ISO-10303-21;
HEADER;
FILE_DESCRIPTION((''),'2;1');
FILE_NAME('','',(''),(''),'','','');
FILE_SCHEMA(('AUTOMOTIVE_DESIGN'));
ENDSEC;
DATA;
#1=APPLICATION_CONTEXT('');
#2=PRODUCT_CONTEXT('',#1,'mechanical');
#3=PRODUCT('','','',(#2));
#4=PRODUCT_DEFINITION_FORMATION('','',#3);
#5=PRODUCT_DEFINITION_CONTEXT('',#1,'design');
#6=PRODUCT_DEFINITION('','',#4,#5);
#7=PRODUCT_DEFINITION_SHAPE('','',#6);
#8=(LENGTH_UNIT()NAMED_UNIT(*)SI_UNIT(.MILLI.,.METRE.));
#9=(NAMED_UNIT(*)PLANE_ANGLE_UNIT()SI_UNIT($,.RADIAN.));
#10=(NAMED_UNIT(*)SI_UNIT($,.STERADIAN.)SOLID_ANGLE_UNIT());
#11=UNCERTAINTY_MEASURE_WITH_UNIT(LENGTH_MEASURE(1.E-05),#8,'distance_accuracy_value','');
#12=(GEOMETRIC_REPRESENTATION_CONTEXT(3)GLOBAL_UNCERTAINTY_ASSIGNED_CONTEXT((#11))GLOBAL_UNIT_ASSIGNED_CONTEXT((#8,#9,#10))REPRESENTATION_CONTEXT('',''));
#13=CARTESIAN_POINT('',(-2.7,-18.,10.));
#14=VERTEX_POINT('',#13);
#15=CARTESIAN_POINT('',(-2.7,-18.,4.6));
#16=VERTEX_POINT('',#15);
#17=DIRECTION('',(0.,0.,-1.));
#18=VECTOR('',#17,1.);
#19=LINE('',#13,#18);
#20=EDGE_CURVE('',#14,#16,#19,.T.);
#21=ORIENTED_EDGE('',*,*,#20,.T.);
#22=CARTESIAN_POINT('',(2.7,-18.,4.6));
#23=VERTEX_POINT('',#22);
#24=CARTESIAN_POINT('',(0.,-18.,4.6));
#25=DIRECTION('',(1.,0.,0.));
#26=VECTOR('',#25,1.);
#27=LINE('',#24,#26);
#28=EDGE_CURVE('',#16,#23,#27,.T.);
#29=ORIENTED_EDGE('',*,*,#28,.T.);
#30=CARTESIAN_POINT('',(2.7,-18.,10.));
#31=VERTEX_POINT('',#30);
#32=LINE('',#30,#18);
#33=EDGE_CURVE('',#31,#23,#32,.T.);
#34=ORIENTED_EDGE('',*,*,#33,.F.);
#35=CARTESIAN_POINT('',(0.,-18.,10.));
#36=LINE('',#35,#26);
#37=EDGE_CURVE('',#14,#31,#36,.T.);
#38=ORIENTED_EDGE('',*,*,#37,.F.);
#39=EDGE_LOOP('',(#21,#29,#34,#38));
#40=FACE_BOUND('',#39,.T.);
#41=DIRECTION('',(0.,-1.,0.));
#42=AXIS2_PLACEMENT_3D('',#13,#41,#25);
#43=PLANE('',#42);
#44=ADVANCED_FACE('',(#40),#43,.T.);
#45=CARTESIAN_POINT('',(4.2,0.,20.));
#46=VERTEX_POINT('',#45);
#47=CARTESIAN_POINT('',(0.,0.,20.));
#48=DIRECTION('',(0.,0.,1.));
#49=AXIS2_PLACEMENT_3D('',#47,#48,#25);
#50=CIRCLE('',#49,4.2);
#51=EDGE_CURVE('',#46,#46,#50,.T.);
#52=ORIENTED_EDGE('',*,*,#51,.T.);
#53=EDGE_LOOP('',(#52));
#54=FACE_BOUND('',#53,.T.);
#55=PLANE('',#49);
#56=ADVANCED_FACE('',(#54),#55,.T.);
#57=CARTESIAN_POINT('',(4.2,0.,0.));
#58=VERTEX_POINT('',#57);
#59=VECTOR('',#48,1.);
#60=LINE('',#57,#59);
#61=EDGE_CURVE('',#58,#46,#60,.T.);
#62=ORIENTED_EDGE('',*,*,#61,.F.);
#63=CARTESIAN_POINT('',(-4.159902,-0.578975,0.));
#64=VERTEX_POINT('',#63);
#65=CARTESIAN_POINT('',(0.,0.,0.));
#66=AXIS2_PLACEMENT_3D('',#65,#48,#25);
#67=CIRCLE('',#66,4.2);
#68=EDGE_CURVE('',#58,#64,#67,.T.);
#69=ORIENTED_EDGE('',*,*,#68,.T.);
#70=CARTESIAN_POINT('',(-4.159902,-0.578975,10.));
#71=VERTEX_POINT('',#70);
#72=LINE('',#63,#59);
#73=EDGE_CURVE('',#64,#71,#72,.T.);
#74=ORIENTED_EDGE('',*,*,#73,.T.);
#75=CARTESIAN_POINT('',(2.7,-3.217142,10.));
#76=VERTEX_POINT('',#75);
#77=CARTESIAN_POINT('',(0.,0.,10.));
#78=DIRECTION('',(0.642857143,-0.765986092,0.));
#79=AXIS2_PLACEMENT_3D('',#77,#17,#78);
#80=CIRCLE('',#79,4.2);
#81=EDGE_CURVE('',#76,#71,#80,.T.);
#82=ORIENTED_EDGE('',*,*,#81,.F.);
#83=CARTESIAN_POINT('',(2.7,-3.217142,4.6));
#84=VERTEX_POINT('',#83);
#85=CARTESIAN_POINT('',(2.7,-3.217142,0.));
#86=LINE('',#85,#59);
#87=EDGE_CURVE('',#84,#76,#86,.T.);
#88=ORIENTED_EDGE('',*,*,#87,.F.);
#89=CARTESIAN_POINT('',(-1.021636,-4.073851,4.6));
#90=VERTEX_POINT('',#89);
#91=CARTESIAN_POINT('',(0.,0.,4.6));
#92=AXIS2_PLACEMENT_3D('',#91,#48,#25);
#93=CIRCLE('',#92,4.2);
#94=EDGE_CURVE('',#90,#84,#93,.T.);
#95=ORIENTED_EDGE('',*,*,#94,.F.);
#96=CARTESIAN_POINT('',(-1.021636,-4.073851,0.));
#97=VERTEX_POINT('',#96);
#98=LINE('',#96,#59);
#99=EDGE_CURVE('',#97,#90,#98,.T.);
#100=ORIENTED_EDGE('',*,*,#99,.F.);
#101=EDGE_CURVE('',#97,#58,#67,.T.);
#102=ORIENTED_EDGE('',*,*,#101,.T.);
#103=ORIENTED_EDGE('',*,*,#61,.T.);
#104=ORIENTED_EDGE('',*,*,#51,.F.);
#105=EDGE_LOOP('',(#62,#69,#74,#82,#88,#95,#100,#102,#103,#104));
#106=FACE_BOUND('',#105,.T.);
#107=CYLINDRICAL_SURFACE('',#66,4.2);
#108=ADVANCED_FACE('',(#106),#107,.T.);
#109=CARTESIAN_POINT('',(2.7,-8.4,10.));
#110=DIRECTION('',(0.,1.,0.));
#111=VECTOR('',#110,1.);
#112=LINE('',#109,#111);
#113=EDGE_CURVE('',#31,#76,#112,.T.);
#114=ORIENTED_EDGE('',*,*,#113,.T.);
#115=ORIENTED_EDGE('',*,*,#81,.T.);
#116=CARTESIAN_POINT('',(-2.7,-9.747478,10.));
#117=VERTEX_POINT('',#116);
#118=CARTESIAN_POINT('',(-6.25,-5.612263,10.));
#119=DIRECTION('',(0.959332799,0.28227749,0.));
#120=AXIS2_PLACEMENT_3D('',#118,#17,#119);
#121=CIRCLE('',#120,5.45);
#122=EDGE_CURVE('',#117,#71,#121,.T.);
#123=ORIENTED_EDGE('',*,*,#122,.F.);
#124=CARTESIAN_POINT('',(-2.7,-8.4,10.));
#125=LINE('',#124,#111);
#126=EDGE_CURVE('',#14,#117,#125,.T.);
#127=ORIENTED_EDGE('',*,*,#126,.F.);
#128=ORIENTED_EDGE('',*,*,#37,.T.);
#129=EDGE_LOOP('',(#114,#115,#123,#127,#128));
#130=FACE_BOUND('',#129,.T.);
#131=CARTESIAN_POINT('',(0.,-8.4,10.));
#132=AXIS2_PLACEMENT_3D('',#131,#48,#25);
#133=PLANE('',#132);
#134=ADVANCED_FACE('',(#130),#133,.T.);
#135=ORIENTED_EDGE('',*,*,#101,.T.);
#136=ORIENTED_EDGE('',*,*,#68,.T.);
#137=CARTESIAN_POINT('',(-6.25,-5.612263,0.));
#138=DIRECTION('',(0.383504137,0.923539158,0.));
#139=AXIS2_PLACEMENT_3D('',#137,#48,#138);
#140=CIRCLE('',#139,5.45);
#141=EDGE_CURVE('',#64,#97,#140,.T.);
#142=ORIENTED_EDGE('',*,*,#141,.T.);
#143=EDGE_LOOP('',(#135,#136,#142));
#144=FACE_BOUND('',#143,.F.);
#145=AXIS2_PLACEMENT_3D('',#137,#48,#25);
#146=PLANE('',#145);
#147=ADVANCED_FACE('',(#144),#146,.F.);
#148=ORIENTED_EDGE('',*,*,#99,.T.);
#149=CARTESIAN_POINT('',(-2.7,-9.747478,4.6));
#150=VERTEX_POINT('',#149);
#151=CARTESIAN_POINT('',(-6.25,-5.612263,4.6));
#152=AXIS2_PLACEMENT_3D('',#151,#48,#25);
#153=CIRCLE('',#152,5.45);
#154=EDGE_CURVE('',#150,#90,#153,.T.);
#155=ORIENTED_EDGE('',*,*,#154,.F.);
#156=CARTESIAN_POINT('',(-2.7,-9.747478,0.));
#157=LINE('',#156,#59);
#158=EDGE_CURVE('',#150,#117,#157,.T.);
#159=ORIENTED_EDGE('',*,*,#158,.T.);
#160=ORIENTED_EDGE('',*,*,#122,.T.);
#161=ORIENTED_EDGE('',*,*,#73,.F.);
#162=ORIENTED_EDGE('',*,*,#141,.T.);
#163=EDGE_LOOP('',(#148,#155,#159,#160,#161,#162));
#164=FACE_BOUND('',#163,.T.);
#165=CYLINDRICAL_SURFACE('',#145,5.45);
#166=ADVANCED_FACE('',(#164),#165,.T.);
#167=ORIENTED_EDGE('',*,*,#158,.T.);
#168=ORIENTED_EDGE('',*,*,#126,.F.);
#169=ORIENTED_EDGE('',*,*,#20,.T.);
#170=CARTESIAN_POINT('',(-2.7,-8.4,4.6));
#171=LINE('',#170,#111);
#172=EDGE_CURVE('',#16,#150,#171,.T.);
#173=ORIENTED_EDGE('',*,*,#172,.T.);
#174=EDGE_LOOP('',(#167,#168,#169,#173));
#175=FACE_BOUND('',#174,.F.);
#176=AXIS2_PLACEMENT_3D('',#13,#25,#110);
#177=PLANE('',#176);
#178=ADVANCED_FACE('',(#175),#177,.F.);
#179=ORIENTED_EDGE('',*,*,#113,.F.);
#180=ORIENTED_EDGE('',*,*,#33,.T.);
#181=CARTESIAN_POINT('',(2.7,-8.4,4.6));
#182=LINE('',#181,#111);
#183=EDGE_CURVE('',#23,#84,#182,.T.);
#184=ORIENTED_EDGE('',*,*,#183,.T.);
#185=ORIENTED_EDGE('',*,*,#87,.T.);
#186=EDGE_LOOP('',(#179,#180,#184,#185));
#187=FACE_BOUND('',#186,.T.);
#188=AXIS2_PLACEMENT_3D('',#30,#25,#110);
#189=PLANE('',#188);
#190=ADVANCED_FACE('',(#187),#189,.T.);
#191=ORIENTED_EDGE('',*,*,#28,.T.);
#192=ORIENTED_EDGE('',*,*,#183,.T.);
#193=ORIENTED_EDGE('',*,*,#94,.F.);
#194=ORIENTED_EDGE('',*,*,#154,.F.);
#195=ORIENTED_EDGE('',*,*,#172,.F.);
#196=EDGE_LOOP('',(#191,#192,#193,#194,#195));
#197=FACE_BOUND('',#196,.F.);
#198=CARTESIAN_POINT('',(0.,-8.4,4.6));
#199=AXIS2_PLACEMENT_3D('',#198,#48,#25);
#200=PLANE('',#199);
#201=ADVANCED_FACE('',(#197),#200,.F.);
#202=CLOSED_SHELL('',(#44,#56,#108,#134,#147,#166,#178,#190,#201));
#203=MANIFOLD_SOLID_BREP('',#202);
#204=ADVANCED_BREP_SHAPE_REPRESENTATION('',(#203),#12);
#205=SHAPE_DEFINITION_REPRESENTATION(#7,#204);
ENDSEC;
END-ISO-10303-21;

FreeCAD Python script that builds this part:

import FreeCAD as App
import Part
import Sketcher

V = App.Vector


def add_polygon(sketch, points):
    """Adds a closed chain of lines whose ends are joined by coincident constraints."""
    first, n = sketch.GeometryCount, len(points)
    for a, b in zip(points, points[1:] + points[:1]):
        sketch.addGeometry(Part.LineSegment(App.Vector(*a, 0), App.Vector(*b, 0)), False)
    for i in range(n):
        sketch.addConstraint(Sketcher.Constraint("Coincident", first + i, 2, first + (i + 1) % n, 1))

doc = App.newDocument("Part")
body = doc.addObject("PartDesign::Body", "Body")

# Sketch on XY plane
sketch1 = body.newObject("Sketcher::SketchObject", "Sketch")
sketch1.AttachmentSupport = (doc.getObject("XY_Plane"), [""])
sketch1.MapMode = "FlatFace"
sketch1.addGeometry(Part.Circle(V(0, 0, 0), V(0, 0, 1), 4.2), False)
sketch1.addConstraint([
    Sketcher.Constraint("Coincident", 0, 3, -1, 1),
    Sketcher.Constraint("Diameter", 0, 8.4),
])

# Sketch on XZ plane
sketch2 = body.newObject("Sketcher::SketchObject", "Sketch001")
sketch2.AttachmentSupport = (doc.getObject("XZ_Plane"), [""])
sketch2.MapMode = "FlatFace"
sketch2.addGeometry(Part.LineSegment(V(0, 0, 0), V(0, 20, 0)), False)
sketch2.addConstraint([
    Sketcher.Constraint("Vertical", 0),
    Sketcher.Constraint("Coincident", 0, 1, -1, 1),
    Sketcher.Constraint("DistanceY", 0, 1, 0, 2, 20.0),
])
doc.recompute()

additivepipe = body.newObject("PartDesign::AdditivePipe", "AdditivePipe")
additivepipe.Profile = sketch1
additivepipe.Spine = (sketch2, ["Edge1"])

# Sketch on XY plane
sketch3 = body.newObject("Sketcher::SketchObject", "Sketch002")
sketch3.AttachmentSupport = (doc.getObject("XY_Plane"), [""])
sketch3.MapMode = "FlatFace"
sketch3.addGeometry(Part.Circle(V(-6.25, -5.612263, 0), V(0, 0, 1), 5.45), False)
sketch3.addConstraint([
    Sketcher.Constraint("Diameter", 0, 10.9),
    Sketcher.Constraint("DistanceX", 0, 3, -1, 1, 6.25),
    Sketcher.Constraint("DistanceY", 0, 3, -1, 1, 5.612263),
])

# Sketch on XZ plane
sketch4 = body.newObject("Sketcher::SketchObject", "Sketch003")
sketch4.AttachmentSupport = (doc.getObject("XZ_Plane"), [""])
sketch4.MapMode = "FlatFace"
sketch4.AttachmentOffset = App.Placement(V(0, 0, 5.612264), App.Rotation())
sketch4.addGeometry(Part.LineSegment(V(-6.25, 0, 0), V(-6.25, 10, 0)), False)
sketch4.addConstraint([
    Sketcher.Constraint("Vertical", 0),
    Sketcher.Constraint("PointOnObject", 0, 1, -1),
    Sketcher.Constraint("DistanceY", 0, 1, 0, 2, 10.0),
    Sketcher.Constraint("DistanceX", 0, 1, -1, 1, 6.25),
])
doc.recompute()

additivepipe2 = body.newObject("PartDesign::AdditivePipe", "AdditivePipe001")
additivepipe2.Profile = sketch3
additivepipe2.Spine = (sketch4, ["Edge1"])

# Sketch on XY plane
sketch5 = body.newObject("Sketcher::SketchObject", "Sketch004")
sketch5.AttachmentSupport = (doc.getObject("XY_Plane"), [""])
sketch5.MapMode = "FlatFace"
sketch5.AttachmentOffset = App.Placement(V(0, 0, 10), App.Rotation())
add_polygon(sketch5, [(-2.7, 1.2), (-2.7, -18), (2.7, -18), (2.7, 1.2)])  # lines 0-3
sketch5.addConstraint([
    Sketcher.Constraint("Vertical", 0),
    Sketcher.Constraint("Horizontal", 1),
    Sketcher.Constraint("Vertical", 2),
    Sketcher.Constraint("Horizontal", 3),
    Sketcher.Constraint("DistanceX", 1, 1, 1, 2, 5.4),
    Sketcher.Constraint("DistanceY", 0, 2, 0, 1, 19.2),
    Sketcher.Constraint("DistanceY", 0, 2, -1, 1, 18.0),
    Sketcher.Constraint("DistanceX", 0, 2, -1, 1, 2.7),
])
pad1 = body.newObject("PartDesign::Pad", "Pad")
pad1.Profile = sketch5
pad1.Length = 5.4
pad1.Reversed = True

doc.recompute()
